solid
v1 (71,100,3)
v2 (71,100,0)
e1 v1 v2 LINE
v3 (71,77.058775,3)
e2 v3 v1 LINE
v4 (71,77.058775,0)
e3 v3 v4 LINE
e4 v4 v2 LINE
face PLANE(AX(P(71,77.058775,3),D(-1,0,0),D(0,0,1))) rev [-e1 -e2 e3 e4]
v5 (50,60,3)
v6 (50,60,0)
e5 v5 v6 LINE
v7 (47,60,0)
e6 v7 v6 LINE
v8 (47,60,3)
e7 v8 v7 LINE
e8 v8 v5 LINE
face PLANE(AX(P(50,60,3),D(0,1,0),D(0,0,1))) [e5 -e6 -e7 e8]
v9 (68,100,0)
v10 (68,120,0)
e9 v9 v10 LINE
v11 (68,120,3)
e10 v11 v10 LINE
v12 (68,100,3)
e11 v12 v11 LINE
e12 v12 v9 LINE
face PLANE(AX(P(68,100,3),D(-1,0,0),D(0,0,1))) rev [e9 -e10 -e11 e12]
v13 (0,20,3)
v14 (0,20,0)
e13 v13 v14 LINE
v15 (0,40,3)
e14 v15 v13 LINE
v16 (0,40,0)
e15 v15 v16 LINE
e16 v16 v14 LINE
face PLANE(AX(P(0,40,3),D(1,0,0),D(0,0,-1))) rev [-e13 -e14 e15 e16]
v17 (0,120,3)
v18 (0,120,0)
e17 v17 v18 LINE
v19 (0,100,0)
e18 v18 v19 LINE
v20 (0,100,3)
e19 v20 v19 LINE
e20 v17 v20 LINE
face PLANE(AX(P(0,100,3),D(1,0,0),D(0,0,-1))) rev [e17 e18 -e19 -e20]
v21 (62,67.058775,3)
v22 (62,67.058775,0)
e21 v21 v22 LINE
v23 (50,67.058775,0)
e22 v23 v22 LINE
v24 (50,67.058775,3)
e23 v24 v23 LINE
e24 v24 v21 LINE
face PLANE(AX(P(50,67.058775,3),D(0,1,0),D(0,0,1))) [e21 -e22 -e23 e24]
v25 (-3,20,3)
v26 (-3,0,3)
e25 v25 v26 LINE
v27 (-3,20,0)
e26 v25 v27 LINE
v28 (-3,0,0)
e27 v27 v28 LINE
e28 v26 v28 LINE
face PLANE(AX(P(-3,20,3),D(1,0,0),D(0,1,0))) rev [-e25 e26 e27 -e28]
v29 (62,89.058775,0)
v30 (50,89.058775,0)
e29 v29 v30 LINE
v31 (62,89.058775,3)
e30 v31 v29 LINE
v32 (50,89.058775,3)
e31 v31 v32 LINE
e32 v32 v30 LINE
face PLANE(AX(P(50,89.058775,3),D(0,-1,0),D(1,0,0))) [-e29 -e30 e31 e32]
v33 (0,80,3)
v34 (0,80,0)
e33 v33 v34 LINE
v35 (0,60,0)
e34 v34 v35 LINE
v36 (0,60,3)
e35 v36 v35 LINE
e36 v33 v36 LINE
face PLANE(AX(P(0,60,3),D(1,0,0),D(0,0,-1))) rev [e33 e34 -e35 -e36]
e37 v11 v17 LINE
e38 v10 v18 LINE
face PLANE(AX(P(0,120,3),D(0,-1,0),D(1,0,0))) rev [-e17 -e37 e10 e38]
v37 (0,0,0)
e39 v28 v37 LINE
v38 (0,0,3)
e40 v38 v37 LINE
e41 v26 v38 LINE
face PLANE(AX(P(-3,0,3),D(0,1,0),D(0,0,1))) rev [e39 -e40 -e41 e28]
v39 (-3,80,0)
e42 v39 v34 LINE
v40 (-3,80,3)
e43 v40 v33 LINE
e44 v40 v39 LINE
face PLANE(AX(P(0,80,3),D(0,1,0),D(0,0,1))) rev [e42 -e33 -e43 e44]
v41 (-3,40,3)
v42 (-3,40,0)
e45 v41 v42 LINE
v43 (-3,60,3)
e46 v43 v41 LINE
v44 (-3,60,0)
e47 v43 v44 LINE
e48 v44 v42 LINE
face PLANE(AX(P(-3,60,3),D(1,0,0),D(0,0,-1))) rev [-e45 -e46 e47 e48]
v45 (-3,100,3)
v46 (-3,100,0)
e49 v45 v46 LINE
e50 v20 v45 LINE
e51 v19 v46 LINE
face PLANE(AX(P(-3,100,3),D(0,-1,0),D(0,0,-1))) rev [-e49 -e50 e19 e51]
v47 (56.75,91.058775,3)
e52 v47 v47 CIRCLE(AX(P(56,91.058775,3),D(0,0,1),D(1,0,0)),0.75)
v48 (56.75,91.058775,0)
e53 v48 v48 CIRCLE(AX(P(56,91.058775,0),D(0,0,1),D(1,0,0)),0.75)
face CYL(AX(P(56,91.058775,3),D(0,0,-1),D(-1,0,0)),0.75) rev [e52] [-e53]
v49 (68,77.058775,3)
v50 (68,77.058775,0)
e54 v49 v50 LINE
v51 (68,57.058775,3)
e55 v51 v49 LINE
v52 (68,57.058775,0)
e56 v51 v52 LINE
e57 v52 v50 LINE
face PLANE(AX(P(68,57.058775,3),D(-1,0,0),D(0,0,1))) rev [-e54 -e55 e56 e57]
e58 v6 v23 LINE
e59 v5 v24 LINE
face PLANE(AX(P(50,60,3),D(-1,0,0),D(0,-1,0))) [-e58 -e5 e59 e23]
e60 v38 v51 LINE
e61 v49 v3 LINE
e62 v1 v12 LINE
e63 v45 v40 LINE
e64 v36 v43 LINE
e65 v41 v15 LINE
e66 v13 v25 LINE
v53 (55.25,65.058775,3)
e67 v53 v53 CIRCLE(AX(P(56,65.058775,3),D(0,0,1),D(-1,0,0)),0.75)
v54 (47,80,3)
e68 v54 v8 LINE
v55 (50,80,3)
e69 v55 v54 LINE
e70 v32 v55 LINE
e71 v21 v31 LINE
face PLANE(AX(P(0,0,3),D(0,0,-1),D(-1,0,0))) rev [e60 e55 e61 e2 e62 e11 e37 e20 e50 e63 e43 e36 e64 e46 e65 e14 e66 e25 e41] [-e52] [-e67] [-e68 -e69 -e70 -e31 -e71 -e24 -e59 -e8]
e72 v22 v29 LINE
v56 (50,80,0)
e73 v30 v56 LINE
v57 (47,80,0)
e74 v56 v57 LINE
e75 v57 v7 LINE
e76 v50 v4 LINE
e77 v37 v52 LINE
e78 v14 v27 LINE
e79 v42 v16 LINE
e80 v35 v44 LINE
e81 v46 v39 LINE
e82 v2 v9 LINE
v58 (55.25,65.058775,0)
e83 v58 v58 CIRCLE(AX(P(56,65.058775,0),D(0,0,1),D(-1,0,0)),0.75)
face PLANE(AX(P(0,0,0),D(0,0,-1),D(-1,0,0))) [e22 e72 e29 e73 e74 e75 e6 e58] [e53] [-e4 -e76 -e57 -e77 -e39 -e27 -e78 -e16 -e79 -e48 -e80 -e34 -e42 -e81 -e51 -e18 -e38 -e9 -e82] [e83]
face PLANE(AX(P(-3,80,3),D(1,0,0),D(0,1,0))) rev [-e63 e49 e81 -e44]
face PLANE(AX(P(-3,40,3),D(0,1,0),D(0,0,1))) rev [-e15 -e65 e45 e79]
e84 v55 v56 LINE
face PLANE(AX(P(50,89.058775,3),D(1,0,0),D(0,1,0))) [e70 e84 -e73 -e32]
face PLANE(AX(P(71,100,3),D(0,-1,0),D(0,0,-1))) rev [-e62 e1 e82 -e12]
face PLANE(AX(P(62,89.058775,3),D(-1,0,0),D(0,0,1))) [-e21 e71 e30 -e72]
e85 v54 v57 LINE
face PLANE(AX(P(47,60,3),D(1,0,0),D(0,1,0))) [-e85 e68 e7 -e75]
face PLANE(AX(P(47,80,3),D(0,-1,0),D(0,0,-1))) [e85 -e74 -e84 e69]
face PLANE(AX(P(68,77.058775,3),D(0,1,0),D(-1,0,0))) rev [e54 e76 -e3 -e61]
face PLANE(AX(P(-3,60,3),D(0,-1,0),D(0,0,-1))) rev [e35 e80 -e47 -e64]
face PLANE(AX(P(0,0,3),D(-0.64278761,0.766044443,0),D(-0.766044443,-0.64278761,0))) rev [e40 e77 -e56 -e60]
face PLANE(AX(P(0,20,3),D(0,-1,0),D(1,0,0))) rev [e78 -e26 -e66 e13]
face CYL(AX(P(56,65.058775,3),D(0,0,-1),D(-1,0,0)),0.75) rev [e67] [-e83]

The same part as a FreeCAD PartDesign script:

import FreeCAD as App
import Part
import Sketcher
Q = App.Units.Quantity


def add_polygon(sketch, points):
    """Adds a closed chain of lines whose ends are joined by coincident constraints."""
    first, n = sketch.GeometryCount, len(points)
    for a, b in zip(points, points[1:] + points[:1]):
        sketch.addGeometry(Part.LineSegment(App.Vector(*a, 0), App.Vector(*b, 0)), False)
    for i in range(n):
        sketch.addConstraint(Sketcher.Constraint("Coincident", first + i, 2, first + (i + 1) % n, 1))

doc = App.newDocument("Part")
body = doc.addObject("PartDesign::Body", "Body")

sketch1 = body.newObject("Sketcher::SketchObject", "Sketch")
sketch1.AttachmentSupport = (doc.getObject("XY_Plane"), [""])
sketch1.MapMode = "FlatFace"
add_polygon(sketch1, [(-3, 60), (-3, 40), (0, 40), (0, 20), (-3, 20), (-3, 0), (0, 0), (68, 57.1), (68, 77.1), (71, 77.1), (71, 100), (68, 100), (68, 120), (0, 120), (0, 100), (-3, 100), (-3, 80), (0, 80), (0, 60)])
sketch1.addGeometry(Part.Circle(App.Vector(56, 65.1, 0), App.Vector(0, 0, 1), 0.8), False)
add_polygon(sketch1, [(47, 60), (47, 80), (50, 80), (50, 89.1), (62, 89.1), (62, 67.1), (50, 67.1), (50, 60)])
sketch1.addGeometry(Part.Circle(App.Vector(56, 91.1, 0), App.Vector(0, 0, 1), 0.8), False)
sketch1.addConstraint(Sketcher.Constraint("Vertical", 0))
sketch1.addConstraint(Sketcher.Constraint("Horizontal", 1))
sketch1.addConstraint(Sketcher.Constraint("Vertical", 2))
sketch1.addConstraint(Sketcher.Constraint("Horizontal", 3))
sketch1.addConstraint(Sketcher.Constraint("Vertical", 4))
sketch1.addConstraint(Sketcher.Constraint("Horizontal", 5))
sketch1.addConstraint(Sketcher.Constraint("Vertical", 7))
sketch1.addConstraint(Sketcher.Constraint("Horizontal", 8))
sketch1.addConstraint(Sketcher.Constraint("Vertical", 9))
sketch1.addConstraint(Sketcher.Constraint("Horizontal", 10))
sketch1.addConstraint(Sketcher.Constraint("Vertical", 11))
sketch1.addConstraint(Sketcher.Constraint("Horizontal", 12))
sketch1.addConstraint(Sketcher.Constraint("Vertical", 13))
sketch1.addConstraint(Sketcher.Constraint("Horizontal", 14))
sketch1.addConstraint(Sketcher.Constraint("Vertical", 15))
sketch1.addConstraint(Sketcher.Constraint("Horizontal", 16))
sketch1.addConstraint(Sketcher.Constraint("Vertical", 17))
sketch1.addConstraint(Sketcher.Constraint("Horizontal", 18))
sketch1.addConstraint(Sketcher.Constraint("Vertical", 20))
sketch1.addConstraint(Sketcher.Constraint("Horizontal", 21))
sketch1.addConstraint(Sketcher.Constraint("Vertical", 22))
sketch1.addConstraint(Sketcher.Constraint("Horizontal", 23))
sketch1.addConstraint(Sketcher.Constraint("Vertical", 24))
sketch1.addConstraint(Sketcher.Constraint("Horizontal", 25))
sketch1.addConstraint(Sketcher.Constraint("Vertical", 26))
sketch1.addConstraint(Sketcher.Constraint("Horizontal", 27))
sketch1.addConstraint(Sketcher.Constraint("Coincident", 5, 2, -1, 1))
sketch1.addConstraint(Sketcher.Constraint("Equal", 19, 28))
sketch1.addConstraint(Sketcher.Constraint("PointOnObject", 1, 2, -2))
sketch1.addConstraint(Sketcher.Constraint("PointOnObject", 12, 2, -2))
sketch1.addConstraint(Sketcher.Constraint("PointOnObject", 16, 2, -2))
sketch1.addConstraint(Sketcher.Constraint("Horizontal", 10, 2, 13, 2))
sketch1.addConstraint(Sketcher.Constraint("Horizontal", 16, 2, 20, 2))
sketch1.addConstraint(Sketcher.Constraint("Horizontal", 18, 2, 26, 2))
sketch1.addConstraint(Sketcher.Constraint("Vertical", 19, 3, 28, 3))
sketch1.addConstraint(Sketcher.Constraint("Vertical", 0, 2, 3, 2))
sketch1.addConstraint(Sketcher.Constraint("Vertical", 7, 2, 10, 2))
sketch1.addConstraint(Sketcher.Constraint("Vertical", 4, 2, 14, 2))
sketch1.addConstraint(Sketcher.Constraint("Vertical", 22, 2, 25, 2))
sketch1.addConstraint(Sketcher.Constraint("Equal", 5, 8))
sketch1.addConstraint(Sketcher.Constraint("Equal", 18, 21))
sketch1.addConstraint(Sketcher.Constraint("Equal", 0, 2))
sketch1.addConstraint(Sketcher.Constraint("Equal", 2, 4))
sketch1.addConstraint(Sketcher.Constraint("Equal", 4, 7))
sketch1.addConstraint(Sketcher.Constraint("Equal", 7, 11))
sketch1.addConstraint(Sketcher.Constraint("Equal", 13, 15))
sketch1.addConstraint(Sketcher.Constraint("Equal", 15, 17))
sketch1.addConstraint(Sketcher.Constraint("Diameter", 19, 1.5))
sketch1.addConstraint(Sketcher.Constraint("DistanceX", 1, 1, 1, 2, 3.0))
sketch1.addConstraint(Sketcher.Constraint("DistanceX", 12, 2, 12, 1, 68.0))
sketch1.addConstraint(Sketcher.Constraint("DistanceX", 23, 1, 23, 2, 12.0))
sketch1.addConstraint(Sketcher.Constraint("DistanceY", 0, 2, 0, 1, 20.0))
sketch1.addConstraint(Sketcher.Constraint("DistanceY", 24, 2, 24, 1, 22.0))
sketch1.addConstraint(Sketcher.Constraint("Angle", 6, Q("40 deg")))
sketch1.addConstraint(Sketcher.Constraint("DistanceX", -1, 1, 19, 3, 56.0))
sketch1.addConstraint(Sketcher.Constraint("DistanceX", -1, 1, 20, 2, 47.0))
sketch1.addConstraint(Sketcher.Constraint("DistanceY", 19, 3, 28, 3, 26.0))
sketch1.addConstraint(Sketcher.Constraint("DistanceY", 6, 2, 19, 3, 8.0))
sketch1.addConstraint(Sketcher.Constraint("DistanceY", 22, 2, 28, 3, 2.0))
pad1 = body.newObject("PartDesign::Pad", "Pad")
pad1.Profile = sketch1
pad1.Length = 3

doc.recompute()
